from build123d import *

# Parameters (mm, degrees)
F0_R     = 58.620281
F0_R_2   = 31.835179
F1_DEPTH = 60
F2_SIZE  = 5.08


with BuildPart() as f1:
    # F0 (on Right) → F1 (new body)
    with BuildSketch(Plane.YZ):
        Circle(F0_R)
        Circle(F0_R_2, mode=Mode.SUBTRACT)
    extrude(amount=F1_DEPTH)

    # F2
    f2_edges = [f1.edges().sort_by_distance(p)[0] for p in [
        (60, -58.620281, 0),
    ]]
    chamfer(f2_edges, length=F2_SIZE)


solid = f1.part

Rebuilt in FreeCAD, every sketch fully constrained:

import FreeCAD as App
import Part
import Sketcher

V = App.Vector
Q = App.Units.Quantity


def edges_at(feature, points):
    """Names of the edges that pass closest to the given points."""
    edges = feature.Shape.Edges
    near = lambda p: min(range(len(edges)), key=lambda i: edges[i].distToShape(Part.Vertex(*p))[0])
    return sorted({f"Edge{near(p) + 1}" for p in points})

doc = App.newDocument("Part")
body = doc.addObject("PartDesign::Body", "Body")

sketch1 = body.newObject("Sketcher::SketchObject", "Sketch")
sketch1.AttachmentSupport = (doc.getObject("YZ_Plane"), [""])
sketch1.MapMode = "FlatFace"
sketch1.addGeometry([
    Part.Circle(V(0, 0, 0), V(0, 0, 1), 58.620281),
    Part.Circle(V(0, 0, 0), V(0, 0, 1), 31.835179),
], False)
sketch1.addConstraint([
    Sketcher.Constraint("Coincident", 0, 3, -1, 1),
    Sketcher.Constraint("Coincident", 1, 3, -1, 1),
    Sketcher.Constraint("Diameter", 0, Q("117.240562 mm")),
    Sketcher.Constraint("Diameter", 1, Q("63.670358 mm")),
])
pad1 = body.newObject("PartDesign::Pad", "Pad")
pad1.Profile = sketch1
pad1.Length = 60
doc.recompute()

chamfer = body.newObject("PartDesign::Chamfer", "Chamfer")
chamfer.Base = (pad1, edges_at(pad1, [(60, -58.62, 0)]))
chamfer.Size = 5.08

doc.recompute()
